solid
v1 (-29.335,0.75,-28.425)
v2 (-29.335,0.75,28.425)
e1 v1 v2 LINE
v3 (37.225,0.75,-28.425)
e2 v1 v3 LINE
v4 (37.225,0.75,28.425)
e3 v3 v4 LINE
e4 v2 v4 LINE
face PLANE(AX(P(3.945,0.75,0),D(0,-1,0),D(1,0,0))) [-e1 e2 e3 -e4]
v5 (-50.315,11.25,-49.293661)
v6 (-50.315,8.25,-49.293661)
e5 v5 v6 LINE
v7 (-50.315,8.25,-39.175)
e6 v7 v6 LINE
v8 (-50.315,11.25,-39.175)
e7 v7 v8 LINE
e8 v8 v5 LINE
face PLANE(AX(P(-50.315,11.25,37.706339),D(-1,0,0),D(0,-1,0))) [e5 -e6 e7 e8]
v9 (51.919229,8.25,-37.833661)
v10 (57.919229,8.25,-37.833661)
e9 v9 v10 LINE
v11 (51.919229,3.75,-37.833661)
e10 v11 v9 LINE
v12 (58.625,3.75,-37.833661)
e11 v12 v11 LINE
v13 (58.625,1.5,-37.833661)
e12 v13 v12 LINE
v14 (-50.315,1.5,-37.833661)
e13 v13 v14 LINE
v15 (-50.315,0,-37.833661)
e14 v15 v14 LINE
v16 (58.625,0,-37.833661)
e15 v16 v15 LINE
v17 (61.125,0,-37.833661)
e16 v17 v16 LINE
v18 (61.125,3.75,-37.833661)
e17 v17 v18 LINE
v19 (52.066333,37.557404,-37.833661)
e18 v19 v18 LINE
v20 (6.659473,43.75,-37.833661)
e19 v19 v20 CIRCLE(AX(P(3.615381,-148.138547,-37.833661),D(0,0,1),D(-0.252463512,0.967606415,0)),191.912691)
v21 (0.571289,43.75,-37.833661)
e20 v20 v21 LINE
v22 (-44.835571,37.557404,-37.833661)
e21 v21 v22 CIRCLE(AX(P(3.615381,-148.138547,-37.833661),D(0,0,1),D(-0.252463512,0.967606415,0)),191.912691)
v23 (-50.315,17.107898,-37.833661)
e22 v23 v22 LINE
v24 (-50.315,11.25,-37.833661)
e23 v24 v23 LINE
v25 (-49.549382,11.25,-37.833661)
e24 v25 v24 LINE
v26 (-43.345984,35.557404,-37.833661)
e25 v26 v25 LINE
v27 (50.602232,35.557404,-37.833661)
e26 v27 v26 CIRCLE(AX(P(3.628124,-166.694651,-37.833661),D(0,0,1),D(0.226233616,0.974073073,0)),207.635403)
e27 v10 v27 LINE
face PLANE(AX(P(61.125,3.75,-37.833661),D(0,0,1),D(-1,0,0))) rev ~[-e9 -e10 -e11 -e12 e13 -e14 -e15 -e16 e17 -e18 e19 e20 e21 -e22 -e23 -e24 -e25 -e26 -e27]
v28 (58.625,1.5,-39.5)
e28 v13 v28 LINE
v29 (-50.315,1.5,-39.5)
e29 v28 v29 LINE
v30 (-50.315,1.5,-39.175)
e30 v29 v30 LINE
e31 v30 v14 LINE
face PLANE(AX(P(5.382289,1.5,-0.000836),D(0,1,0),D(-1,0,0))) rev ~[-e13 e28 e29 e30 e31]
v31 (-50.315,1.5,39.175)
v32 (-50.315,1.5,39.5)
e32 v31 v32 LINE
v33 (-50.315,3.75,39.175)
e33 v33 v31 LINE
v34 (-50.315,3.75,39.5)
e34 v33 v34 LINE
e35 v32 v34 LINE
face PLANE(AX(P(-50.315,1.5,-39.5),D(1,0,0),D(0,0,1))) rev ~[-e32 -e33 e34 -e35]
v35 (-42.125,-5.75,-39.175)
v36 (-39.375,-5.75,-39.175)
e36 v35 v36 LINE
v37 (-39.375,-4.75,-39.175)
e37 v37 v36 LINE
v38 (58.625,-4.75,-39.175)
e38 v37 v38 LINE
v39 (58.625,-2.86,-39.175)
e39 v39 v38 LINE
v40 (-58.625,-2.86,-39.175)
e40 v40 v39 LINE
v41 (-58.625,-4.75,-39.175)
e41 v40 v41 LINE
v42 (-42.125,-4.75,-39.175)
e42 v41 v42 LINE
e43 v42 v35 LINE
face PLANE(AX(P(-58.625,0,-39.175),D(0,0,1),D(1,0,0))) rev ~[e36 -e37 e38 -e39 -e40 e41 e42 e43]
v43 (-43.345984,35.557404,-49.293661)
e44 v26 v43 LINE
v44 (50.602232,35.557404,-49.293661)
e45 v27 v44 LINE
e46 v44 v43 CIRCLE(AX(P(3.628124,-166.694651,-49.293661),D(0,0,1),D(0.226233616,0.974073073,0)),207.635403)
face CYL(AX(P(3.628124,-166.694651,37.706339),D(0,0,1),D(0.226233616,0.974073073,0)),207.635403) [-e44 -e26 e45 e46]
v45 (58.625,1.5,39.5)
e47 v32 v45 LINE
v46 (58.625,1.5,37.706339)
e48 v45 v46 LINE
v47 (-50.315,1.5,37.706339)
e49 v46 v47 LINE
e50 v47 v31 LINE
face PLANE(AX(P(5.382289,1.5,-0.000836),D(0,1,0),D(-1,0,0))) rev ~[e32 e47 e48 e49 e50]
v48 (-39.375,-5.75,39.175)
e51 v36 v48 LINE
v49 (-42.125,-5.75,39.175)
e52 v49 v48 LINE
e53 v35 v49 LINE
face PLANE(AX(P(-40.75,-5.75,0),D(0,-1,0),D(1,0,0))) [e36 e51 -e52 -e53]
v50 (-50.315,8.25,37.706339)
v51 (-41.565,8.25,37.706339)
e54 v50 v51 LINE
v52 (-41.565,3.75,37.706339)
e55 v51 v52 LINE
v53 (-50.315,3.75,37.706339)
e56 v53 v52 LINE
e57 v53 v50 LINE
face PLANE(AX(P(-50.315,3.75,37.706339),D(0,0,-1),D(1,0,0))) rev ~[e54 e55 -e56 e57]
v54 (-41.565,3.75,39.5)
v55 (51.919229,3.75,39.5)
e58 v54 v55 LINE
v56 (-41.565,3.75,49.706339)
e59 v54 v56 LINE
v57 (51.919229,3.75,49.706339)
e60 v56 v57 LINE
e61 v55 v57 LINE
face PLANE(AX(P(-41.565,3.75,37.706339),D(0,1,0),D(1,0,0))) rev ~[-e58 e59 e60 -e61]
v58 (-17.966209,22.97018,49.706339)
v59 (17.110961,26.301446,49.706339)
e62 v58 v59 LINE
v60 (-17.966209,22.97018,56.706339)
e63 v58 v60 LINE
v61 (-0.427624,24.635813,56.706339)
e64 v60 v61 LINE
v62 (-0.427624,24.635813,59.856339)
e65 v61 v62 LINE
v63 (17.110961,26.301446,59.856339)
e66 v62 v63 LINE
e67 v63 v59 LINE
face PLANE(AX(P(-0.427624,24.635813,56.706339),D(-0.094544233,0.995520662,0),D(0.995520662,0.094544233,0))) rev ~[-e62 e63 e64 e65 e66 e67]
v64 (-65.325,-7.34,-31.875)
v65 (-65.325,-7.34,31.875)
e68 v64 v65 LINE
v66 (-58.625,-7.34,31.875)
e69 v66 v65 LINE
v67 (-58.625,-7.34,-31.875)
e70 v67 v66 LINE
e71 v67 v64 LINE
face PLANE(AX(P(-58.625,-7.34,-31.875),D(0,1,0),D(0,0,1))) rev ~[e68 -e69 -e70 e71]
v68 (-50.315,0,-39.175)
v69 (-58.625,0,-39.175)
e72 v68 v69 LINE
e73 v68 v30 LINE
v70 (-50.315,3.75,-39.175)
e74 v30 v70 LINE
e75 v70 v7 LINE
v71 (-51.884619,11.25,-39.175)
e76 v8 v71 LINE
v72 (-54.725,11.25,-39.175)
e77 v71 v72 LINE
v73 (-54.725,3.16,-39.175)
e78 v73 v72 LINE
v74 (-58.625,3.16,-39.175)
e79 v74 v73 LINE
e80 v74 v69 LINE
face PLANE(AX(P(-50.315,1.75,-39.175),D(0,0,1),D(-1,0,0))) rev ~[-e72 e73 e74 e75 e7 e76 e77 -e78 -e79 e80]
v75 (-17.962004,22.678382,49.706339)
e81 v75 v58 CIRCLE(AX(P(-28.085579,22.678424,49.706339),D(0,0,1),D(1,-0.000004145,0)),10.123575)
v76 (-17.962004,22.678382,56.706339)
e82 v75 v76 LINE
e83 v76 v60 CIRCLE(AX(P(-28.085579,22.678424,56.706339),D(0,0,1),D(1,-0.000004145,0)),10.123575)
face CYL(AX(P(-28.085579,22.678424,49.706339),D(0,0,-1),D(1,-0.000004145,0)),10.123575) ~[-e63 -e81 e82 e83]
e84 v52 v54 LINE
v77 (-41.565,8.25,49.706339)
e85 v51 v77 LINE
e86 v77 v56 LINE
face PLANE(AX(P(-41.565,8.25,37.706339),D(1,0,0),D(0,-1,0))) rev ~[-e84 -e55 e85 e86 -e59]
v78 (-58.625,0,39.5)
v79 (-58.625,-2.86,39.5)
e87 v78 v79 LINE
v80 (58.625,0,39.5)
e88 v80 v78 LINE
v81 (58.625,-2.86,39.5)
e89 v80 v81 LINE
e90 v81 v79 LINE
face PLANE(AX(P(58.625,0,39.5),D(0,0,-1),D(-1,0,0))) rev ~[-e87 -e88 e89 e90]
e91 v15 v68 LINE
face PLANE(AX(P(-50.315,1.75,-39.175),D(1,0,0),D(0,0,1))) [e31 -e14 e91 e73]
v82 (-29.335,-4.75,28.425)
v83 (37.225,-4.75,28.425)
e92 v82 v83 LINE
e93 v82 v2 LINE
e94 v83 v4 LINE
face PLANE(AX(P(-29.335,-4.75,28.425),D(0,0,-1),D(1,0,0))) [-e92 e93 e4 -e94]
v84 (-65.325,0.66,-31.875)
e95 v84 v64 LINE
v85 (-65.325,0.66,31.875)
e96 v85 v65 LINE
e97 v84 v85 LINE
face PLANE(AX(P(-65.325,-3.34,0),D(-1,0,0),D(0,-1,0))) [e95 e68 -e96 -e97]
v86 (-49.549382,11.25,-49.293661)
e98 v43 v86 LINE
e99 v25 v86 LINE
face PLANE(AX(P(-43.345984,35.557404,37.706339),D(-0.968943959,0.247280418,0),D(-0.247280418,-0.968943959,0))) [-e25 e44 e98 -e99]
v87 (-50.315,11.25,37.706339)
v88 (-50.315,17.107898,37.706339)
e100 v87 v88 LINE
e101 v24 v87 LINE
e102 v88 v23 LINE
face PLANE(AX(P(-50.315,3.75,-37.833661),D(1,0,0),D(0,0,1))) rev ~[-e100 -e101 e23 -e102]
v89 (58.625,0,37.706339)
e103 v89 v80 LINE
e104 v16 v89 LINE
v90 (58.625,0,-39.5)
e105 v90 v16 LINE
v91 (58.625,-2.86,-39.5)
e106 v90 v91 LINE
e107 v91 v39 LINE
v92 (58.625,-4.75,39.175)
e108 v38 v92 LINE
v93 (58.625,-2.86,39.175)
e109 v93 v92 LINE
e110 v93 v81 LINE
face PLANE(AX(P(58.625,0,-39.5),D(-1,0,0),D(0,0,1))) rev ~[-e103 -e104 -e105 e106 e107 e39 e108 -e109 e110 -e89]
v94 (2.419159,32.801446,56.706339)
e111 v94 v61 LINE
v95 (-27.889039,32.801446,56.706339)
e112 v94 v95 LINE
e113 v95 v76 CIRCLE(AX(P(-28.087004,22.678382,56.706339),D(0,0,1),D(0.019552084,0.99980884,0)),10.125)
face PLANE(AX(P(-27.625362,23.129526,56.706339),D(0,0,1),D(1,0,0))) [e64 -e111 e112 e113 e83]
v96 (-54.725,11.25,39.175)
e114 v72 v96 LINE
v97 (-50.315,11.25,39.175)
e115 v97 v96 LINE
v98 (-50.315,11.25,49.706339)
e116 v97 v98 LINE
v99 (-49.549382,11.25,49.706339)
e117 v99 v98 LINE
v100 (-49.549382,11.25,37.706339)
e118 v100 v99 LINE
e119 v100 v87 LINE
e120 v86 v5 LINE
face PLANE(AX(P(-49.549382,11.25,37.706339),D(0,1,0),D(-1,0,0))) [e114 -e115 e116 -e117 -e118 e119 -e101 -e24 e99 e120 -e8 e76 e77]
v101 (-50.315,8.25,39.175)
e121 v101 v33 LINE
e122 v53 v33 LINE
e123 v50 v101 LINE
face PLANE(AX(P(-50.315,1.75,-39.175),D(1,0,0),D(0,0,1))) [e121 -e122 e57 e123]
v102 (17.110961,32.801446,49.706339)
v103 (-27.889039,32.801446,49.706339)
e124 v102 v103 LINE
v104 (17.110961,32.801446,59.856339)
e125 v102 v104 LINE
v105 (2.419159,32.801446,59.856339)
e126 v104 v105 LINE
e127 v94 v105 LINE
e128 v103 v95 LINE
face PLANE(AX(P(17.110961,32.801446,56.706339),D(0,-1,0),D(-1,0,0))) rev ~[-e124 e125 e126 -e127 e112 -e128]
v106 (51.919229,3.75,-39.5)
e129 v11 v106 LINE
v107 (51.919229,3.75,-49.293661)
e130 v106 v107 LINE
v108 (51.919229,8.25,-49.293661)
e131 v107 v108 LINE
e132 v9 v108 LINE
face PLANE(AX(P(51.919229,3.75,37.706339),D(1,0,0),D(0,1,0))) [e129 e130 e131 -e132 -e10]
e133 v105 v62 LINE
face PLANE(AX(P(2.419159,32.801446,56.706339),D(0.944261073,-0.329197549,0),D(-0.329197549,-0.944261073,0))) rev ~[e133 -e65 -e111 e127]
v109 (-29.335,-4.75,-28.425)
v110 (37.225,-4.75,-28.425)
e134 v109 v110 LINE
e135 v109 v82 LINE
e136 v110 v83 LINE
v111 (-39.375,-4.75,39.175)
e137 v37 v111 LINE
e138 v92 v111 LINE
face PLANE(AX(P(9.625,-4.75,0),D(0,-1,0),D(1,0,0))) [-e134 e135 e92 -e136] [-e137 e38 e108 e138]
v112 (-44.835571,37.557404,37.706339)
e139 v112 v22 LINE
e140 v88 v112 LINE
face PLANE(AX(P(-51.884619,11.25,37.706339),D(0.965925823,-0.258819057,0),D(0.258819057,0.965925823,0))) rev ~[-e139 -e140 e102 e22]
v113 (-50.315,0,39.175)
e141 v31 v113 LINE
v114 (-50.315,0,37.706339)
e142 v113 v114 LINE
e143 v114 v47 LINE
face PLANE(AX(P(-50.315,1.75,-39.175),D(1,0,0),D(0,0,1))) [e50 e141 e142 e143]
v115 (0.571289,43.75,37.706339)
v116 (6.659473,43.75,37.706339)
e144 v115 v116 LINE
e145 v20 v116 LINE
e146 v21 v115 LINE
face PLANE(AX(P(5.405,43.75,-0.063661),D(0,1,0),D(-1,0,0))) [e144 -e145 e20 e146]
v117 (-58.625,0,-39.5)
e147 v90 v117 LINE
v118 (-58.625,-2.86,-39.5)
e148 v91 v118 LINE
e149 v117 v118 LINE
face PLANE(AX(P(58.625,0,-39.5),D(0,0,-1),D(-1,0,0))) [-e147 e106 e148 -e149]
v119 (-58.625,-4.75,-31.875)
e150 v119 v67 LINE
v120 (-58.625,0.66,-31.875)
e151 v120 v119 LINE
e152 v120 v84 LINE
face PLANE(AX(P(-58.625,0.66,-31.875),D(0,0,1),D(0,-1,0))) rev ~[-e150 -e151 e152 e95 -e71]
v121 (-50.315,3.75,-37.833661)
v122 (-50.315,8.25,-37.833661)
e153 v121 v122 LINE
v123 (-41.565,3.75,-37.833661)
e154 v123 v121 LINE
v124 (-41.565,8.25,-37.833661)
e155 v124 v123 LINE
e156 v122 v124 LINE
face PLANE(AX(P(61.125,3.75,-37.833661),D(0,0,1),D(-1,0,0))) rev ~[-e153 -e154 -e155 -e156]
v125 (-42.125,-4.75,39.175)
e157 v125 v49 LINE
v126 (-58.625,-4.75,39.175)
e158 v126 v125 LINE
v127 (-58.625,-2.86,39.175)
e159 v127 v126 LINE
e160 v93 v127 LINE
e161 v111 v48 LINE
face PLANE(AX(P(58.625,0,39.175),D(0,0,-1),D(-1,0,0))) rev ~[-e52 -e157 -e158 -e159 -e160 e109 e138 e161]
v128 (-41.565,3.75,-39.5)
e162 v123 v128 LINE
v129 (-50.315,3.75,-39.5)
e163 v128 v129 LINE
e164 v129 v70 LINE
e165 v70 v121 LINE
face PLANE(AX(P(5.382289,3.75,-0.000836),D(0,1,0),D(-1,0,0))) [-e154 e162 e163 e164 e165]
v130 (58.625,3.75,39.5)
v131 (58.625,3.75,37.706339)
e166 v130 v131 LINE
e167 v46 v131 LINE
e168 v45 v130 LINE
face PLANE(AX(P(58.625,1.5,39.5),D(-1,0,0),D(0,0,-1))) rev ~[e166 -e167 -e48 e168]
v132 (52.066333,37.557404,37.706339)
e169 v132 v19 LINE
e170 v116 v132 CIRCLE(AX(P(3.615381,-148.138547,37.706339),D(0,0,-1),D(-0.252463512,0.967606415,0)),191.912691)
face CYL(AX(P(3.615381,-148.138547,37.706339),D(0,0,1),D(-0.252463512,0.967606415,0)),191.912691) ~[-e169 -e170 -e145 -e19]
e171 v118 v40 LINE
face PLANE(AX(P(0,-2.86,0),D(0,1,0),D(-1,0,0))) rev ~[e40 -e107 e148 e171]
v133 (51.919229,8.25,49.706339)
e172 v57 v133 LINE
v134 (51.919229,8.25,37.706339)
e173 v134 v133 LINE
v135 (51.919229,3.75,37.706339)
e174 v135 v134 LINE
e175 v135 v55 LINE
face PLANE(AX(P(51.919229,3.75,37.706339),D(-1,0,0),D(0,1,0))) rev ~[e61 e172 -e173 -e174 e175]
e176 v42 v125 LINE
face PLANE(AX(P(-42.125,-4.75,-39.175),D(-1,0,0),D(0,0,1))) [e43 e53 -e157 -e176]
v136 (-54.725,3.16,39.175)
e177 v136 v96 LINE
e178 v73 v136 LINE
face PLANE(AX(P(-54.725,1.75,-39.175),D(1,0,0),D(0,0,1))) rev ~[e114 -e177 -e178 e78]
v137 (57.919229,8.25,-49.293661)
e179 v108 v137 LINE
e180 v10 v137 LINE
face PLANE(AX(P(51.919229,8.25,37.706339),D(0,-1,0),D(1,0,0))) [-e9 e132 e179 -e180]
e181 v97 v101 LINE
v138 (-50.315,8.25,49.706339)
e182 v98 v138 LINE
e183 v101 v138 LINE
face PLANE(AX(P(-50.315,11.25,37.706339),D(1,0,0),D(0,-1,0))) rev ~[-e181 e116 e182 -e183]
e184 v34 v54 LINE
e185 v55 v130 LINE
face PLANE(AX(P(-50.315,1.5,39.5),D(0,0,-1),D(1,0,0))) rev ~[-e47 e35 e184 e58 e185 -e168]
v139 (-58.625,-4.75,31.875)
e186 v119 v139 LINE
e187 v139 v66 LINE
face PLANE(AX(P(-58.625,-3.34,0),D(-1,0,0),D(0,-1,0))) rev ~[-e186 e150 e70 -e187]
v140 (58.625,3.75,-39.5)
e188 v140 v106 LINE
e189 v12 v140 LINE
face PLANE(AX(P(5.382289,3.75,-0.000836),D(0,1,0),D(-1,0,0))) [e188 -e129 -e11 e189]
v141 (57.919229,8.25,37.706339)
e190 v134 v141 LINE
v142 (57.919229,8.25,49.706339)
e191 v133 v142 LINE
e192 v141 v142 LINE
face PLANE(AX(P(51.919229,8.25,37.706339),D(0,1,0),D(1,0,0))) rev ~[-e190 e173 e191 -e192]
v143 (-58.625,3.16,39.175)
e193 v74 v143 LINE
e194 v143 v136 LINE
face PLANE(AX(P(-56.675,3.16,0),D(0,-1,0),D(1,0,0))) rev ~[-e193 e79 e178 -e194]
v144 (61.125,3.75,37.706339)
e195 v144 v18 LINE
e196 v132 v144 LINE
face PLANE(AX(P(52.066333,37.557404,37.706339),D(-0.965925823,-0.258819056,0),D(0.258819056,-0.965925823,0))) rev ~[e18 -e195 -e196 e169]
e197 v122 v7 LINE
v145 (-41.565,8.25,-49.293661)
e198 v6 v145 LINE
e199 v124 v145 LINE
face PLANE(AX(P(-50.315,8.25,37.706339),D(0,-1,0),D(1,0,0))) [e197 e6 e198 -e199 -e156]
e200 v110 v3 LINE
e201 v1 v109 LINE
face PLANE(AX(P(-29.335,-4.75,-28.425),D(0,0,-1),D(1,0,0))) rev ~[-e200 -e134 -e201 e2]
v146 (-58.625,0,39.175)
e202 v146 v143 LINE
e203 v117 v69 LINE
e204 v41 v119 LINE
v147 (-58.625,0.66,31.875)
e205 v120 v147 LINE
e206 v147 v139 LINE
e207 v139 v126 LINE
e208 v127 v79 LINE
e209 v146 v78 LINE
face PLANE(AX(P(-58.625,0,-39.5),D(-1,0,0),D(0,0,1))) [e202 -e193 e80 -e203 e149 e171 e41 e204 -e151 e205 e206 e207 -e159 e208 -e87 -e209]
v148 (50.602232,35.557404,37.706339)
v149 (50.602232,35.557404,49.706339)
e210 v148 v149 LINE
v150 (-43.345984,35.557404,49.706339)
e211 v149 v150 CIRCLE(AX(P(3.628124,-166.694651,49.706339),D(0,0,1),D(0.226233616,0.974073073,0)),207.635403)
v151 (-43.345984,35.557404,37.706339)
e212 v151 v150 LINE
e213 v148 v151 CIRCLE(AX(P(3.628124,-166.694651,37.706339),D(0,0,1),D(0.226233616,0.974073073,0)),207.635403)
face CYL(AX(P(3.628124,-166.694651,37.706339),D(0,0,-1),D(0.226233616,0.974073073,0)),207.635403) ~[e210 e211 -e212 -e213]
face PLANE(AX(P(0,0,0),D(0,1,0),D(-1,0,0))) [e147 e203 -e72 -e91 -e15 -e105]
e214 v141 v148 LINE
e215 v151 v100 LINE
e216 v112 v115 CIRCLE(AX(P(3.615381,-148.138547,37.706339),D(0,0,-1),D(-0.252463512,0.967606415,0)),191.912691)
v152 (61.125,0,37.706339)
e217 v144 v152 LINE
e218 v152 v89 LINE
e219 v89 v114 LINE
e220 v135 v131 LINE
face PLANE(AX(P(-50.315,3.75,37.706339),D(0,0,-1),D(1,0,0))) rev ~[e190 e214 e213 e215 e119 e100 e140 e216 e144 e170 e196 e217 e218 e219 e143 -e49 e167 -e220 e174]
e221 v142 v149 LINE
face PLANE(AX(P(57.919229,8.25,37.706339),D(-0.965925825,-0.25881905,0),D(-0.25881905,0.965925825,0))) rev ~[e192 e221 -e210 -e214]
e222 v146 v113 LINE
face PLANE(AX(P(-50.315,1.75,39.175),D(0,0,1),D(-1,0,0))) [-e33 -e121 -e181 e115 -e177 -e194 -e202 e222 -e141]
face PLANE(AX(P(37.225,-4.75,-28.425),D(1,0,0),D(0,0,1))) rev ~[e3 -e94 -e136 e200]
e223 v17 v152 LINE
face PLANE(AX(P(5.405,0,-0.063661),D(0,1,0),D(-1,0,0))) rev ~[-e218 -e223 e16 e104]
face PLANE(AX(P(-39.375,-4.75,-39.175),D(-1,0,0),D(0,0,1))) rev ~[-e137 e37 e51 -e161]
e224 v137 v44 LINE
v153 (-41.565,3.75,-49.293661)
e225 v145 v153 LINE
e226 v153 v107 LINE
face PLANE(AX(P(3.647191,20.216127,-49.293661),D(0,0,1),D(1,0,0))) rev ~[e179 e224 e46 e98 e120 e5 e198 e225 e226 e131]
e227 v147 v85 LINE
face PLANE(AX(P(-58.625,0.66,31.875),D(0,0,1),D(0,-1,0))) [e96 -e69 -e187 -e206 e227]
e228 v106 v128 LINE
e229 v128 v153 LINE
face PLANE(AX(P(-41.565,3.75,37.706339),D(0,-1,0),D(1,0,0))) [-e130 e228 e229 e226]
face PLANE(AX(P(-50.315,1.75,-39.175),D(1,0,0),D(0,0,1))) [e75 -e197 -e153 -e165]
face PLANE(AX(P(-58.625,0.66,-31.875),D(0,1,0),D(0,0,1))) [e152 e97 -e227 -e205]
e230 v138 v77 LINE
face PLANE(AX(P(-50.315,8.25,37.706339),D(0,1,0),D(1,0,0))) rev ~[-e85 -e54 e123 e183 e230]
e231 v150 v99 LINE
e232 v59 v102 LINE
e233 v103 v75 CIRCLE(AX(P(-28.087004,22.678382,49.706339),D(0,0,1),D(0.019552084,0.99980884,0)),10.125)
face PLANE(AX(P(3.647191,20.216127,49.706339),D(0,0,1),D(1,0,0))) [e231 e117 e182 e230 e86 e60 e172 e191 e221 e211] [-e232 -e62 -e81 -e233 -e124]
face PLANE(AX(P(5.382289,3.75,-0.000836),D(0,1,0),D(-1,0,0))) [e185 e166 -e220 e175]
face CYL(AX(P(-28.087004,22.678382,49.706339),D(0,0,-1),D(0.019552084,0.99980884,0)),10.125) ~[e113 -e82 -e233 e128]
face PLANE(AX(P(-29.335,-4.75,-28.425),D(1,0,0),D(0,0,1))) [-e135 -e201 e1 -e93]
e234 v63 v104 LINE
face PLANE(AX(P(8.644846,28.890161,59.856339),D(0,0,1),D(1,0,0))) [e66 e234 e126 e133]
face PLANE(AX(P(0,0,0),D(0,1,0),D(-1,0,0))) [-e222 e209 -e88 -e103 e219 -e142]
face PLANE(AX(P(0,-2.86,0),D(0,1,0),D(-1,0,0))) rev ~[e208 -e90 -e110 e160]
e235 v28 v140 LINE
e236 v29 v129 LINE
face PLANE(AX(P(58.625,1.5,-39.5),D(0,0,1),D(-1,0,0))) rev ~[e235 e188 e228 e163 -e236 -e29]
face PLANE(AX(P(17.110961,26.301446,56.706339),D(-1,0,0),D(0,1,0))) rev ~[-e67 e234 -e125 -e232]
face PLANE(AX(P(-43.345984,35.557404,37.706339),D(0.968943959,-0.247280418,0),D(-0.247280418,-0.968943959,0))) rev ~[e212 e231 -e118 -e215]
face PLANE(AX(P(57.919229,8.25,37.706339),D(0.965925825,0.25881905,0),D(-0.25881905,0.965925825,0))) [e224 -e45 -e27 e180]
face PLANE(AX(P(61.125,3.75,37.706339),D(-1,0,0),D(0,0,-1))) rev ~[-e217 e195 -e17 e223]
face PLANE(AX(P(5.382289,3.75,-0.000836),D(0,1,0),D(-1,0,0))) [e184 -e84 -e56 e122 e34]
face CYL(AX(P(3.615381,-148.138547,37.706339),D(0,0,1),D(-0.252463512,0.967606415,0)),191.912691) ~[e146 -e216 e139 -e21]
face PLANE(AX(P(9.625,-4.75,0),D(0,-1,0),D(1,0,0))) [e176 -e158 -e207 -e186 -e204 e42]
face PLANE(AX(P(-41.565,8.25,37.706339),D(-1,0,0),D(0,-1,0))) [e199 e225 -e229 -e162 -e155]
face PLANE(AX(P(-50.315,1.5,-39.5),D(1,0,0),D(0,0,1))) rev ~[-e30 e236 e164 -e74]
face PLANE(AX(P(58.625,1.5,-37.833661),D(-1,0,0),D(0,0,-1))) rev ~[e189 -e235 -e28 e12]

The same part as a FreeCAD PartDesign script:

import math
import FreeCAD as App
import Part
import Sketcher
from FreeCAD import Vector
Q = App.Units.Quantity

doc = App.newDocument("Part")
params = doc.addObject("Spreadsheet::Sheet", "Params")
for row, (alias, value) in enumerate([
    ("sketch1_width", "117.25 mm"),
    ("sketch1_height", "78.35 mm"),
    ("pad1_length", "4.75 mm"),
    ("sketch2_width", "2.75 mm"),
    ("sketch2_height", "78.35 mm"),
    ("pad2_length", "1 mm"),
    ("sketch3_width", "66.56 mm"),
    ("sketch3_height", "56.85 mm"),
    ("pocket1_length", "25 mm"),
    ("sketch4_height", "79 mm"),
    ("sketch4_width", "117.25 mm"),
    ("pad3_length", "2.86 mm"),
    ("sketch5_width", "3.9 mm"),
    ("sketch5_height", "78.35 mm"),
    ("pad4_length", "7.91 mm"),
    ("sketch6_width", "8.31 mm"),
    ("sketch6_height", "78.35 mm"),
    ("pad5_length", "6.5 mm"),
    ("sketch7_width", "111.44 mm"),
    ("sketch7_height", "75.54 mm"),
    ("pad6_length", "1.5 mm"),
    ("sketch8_width", "4.41 mm"),
    ("sketch8_height", "78.35 mm"),
    ("pad7_length", "9.5 mm"),
    ("sketch9_height", "79 mm"),
    ("sketch9_width", "2.5 mm"),
    ("sketch9_width2", "108.94 mm"),
    ("sketch9_height2", "75.54 mm"),
    ("pad8_length", "2.25 mm"),
    ("sketch10_width", "111.44 mm"),
    ("sketch10_height", "75.54 mm"),
    ("pad9_length", "40 mm"),
    ("sketch11_length", "35 mm"),
    ("pocket2_length", "95.3 mm"),
    ("sketch12_width", "6 mm"),
    ("sketch12_height", "3 mm"),
    ("sketch12_height2", "4.5 mm"),
    ("sketch12_width2", "8.75 mm"),
    ("pad10_length", "12 mm"),
    ("pad10_length2", "87 mm"),
    ("sketch13_width", "45 mm"),
    ("sketch13_height", "6.5 mm"),
    ("pad11_length", "7 mm"),
    ("sketch14_height", "6.5 mm"),
    ("pad12_length", "3.15 mm"),
    ("sketch15_width", "8 mm"),
    ("sketch15_height", "63.75 mm"),
    ("pad13_length", "6.7 mm"),
    ("sketch16_width", "66.56 mm"),
    ("sketch16_height", "56.85 mm"),
    ("pocket3_length", "5.5 mm"),
], start=1):
    params.set(f"A{row}", alias)
    params.set(f"B{row}", "=" + value)
    params.setAlias(f"B{row}", alias)

body = doc.addObject("PartDesign::Body", "Body")

sketch1 = doc.addObject("Sketcher::SketchObject", "Sketch")
body.addObject(sketch1)
sketch1.AttachmentSupport = (doc.XZ_Plane, [""])
sketch1.MapMode = "FlatFace"
sketch1.addGeometry([
    Part.LineSegment(Vector(58.625, -39.175, 0), Vector(58.625, 39.175, 0)),
    Part.LineSegment(Vector(58.625, 39.175, 0), Vector(-58.625, 39.175, 0)),
    Part.LineSegment(Vector(-58.625, 39.175, 0), Vector(-58.625, -39.175, 0)),
    Part.LineSegment(Vector(-58.625, -39.175, 0), Vector(58.625, -39.175, 0)),
], False)
sketch1.addConstraint([
    Sketcher.Constraint("Coincident", 0, 2, 1, 1),
    Sketcher.Constraint("Coincident", 1, 2, 2, 1),
    Sketcher.Constraint("Coincident", 2, 2, 3, 1),
    Sketcher.Constraint("Coincident", 3, 2, 0, 1),
    Sketcher.Constraint("Vertical", 0),
    Sketcher.Constraint("Horizontal", 1),
    Sketcher.Constraint("Vertical", 2),
    Sketcher.Constraint("Horizontal", 3),
    Sketcher.Constraint("Symmetric", 0, 2, 2, 2, -1, 1),
    Sketcher.Constraint("DistanceX", 1, 2, 1, 1, 117.25),
    Sketcher.Constraint("DistanceY", 0, 1, 0, 2, 78.35),
])
sketch1.setExpression("Constraints[9]", "Params.sketch1_width")
sketch1.setExpression("Constraints[10]", "Params.sketch1_height")
pad1 = doc.addObject("PartDesign::Pad", "Pad")
body.addObject(pad1)
pad1.Profile = sketch1
pad1.setExpression("Length", "Params.pad1_length")

sketch2 = doc.addObject("Sketcher::SketchObject", "Sketch001")
body.addObject(sketch2)
sketch2.AttachmentSupport = (doc.XZ_Plane, [""])
sketch2.MapMode = "FlatFace"
sketch2.AttachmentOffset = App.Placement(Vector(0, 0, 4.75), App.Rotation())
sketch2.addGeometry([
    Part.LineSegment(Vector(-42.125, 39.175, 0), Vector(-42.125, -39.175, 0)),
    Part.LineSegment(Vector(-42.125, -39.175, 0), Vector(-39.375, -39.175, 0)),
    Part.LineSegment(Vector(-39.375, -39.175, 0), Vector(-39.375, 39.175, 0)),
    Part.LineSegment(Vector(-39.375, 39.175, 0), Vector(-42.125, 39.175, 0)),
], False)
sketch2.addConstraint([
    Sketcher.Constraint("Coincident", 0, 2, 1, 1),
    Sketcher.Constraint("Coincident", 1, 2, 2, 1),
    Sketcher.Constraint("Coincident", 2, 2, 3, 1),
    Sketcher.Constraint("Coincident", 3, 2, 0, 1),
    Sketcher.Constraint("Vertical", 0),
    Sketcher.Constraint("Horizontal", 1),
    Sketcher.Constraint("Vertical", 2),
    Sketcher.Constraint("Horizontal", 3),
    Sketcher.Constraint("DistanceX", 1, 1, 1, 2, 2.75),
    Sketcher.Constraint("DistanceY", 0, 2, 0, 1, 78.35),
    Sketcher.Constraint("DistanceX", 0, 2, -1, 1, 42.125),
    Sketcher.Constraint("DistanceY", 0, 2, -1, 1, 39.175),
])
sketch2.setExpression("Constraints[8]", "Params.sketch2_width")
sketch2.setExpression("Constraints[9]", "Params.sketch2_height")
pad2 = doc.addObject("PartDesign::Pad", "Pad001")
body.addObject(pad2)
pad2.Profile = sketch2
pad2.setExpression("Length", "Params.pad2_length")

sketch3 = doc.addObject("Sketcher::SketchObject", "Sketch002")
body.addObject(sketch3)
sketch3.AttachmentSupport = (doc.XZ_Plane, [""])
sketch3.MapMode = "FlatFace"
sketch3.AttachmentOffset = App.Placement(Vector(0, 0, 4.75), App.Rotation())
sketch3.addGeometry([
    Part.LineSegment(Vector(-29.335, 28.425, 0), Vector(-29.335, -28.425, 0)),
    Part.LineSegment(Vector(-29.335, -28.425, 0), Vector(37.225, -28.425, 0)),
    Part.LineSegment(Vector(37.225, -28.425, 0), Vector(37.225, 28.425, 0)),
    Part.LineSegment(Vector(37.225, 28.425, 0), Vector(-29.335, 28.425, 0)),
], False)
sketch3.addConstraint([
    Sketcher.Constraint("Coincident", 0, 2, 1, 1),
    Sketcher.Constraint("Coincident", 1, 2, 2, 1),
    Sketcher.Constraint("Coincident", 2, 2, 3, 1),
    Sketcher.Constraint("Coincident", 3, 2, 0, 1),
    Sketcher.Constraint("Vertical", 0),
    Sketcher.Constraint("Horizontal", 1),
    Sketcher.Constraint("Vertical", 2),
    Sketcher.Constraint("Horizontal", 3),
    Sketcher.Constraint("DistanceX", 1, 1, 1, 2, 66.56),
    Sketcher.Constraint("DistanceY", 0, 2, 0, 1, 56.85),
    Sketcher.Constraint("DistanceX", 0, 2, -1, 1, 29.335),
    Sketcher.Constraint("DistanceY", 0, 2, -1, 1, 28.425),
])
sketch3.setExpression("Constraints[8]", "Params.sketch3_width")
sketch3.setExpression("Constraints[9]", "Params.sketch3_height")
pocket1 = doc.addObject("PartDesign::Pocket", "Pocket")
body.addObject(pocket1)
pocket1.Profile = sketch3
pocket1.setExpression("Length", "Params.pocket1_length")

sketch4 = doc.addObject("Sketcher::SketchObject", "Sketch003")
body.addObject(sketch4)
sketch4.AttachmentSupport = (doc.XZ_Plane, [""])
sketch4.MapMode = "FlatFace"
sketch4.addGeometry([
    Part.LineSegment(Vector(58.625, 39.5, 0), Vector(58.625, -39.5, 0)),
    Part.LineSegment(Vector(58.625, -39.5, 0), Vector(-58.625, -39.5, 0)),
    Part.LineSegment(Vector(-58.625, -39.5, 0), Vector(-58.625, 39.5, 0)),
    Part.LineSegment(Vector(-58.625, 39.5, 0), Vector(58.625, 39.5, 0)),
], False)
sketch4.addConstraint([
    Sketcher.Constraint("Coincident", 0, 2, 1, 1),
    Sketcher.Constraint("Coincident", 1, 2, 2, 1),
    Sketcher.Constraint("Coincident", 2, 2, 3, 1),
    Sketcher.Constraint("Coincident", 3, 2, 0, 1),
    Sketcher.Constraint("Vertical", 0),
    Sketcher.Constraint("Horizontal", 1),
    Sketcher.Constraint("Vertical", 2),
    Sketcher.Constraint("Horizontal", 3),
    Sketcher.Constraint("Symmetric", 0, 2, 2, 2, -1, 1),
    Sketcher.Constraint("DistanceY", 0, 2, 0, 1, 79.0),
    Sketcher.Constraint("DistanceX", 1, 2, 1, 1, 117.25),
])
sketch4.setExpression("Constraints[9]", "Params.sketch4_height")
sketch4.setExpression("Constraints[10]", "Params.sketch4_width")
pad3 = doc.addObject("PartDesign::Pad", "Pad002")
body.addObject(pad3)
pad3.Profile = sketch4
pad3.setExpression("Length", "Params.pad3_length")

sketch5 = doc.addObject("Sketcher::SketchObject", "Sketch004")
body.addObject(sketch5)
sketch5.AttachmentSupport = (doc.XZ_Plane, [""])
sketch5.MapMode = "FlatFace"
sketch5.AttachmentOffset = App.Placement(Vector(0, 0, 4.75), App.Rotation())
sketch5.addGeometry([
    Part.LineSegment(Vector(-58.625, 39.175, 0), Vector(-58.625, -39.175, 0)),
    Part.LineSegment(Vector(-58.625, -39.175, 0), Vector(-54.725, -39.175, 0)),
    Part.LineSegment(Vector(-54.725, -39.175, 0), Vector(-54.725, 39.175, 0)),
    Part.LineSegment(Vector(-54.725, 39.175, 0), Vector(-58.625, 39.175, 0)),
], False)
sketch5.addConstraint([
    Sketcher.Constraint("Coincident", 0, 2, 1, 1),
    Sketcher.Constraint("Coincident", 1, 2, 2, 1),
    Sketcher.Constraint("Coincident", 2, 2, 3, 1),
    Sketcher.Constraint("Coincident", 3, 2, 0, 1),
    Sketcher.Constraint("Vertical", 0),
    Sketcher.Constraint("Horizontal", 1),
    Sketcher.Constraint("Vertical", 2),
    Sketcher.Constraint("Horizontal", 3),
    Sketcher.Constraint("DistanceX", 1, 1, 1, 2, 3.9),
    Sketcher.Constraint("DistanceY", 0, 2, 0, 1, 78.35),
    Sketcher.Constraint("DistanceX", 0, 2, -1, 1, 58.625),
    Sketcher.Constraint("DistanceY", 0, 2, -1, 1, 39.175),
])
sketch5.setExpression("Constraints[8]", "Params.sketch5_width")
sketch5.setExpression("Constraints[9]", "Params.sketch5_height")
pad4 = doc.addObject("PartDesign::Pad", "Pad003")
body.addObject(pad4)
pad4.Profile = sketch5
pad4.setExpression("Length", "Params.pad4_length")
pad4.Reversed = True

sketch6 = doc.addObject("Sketcher::SketchObject", "Sketch005")
body.addObject(sketch6)
sketch6.AttachmentSupport = (doc.XZ_Plane, [""])
sketch6.MapMode = "FlatFace"
sketch6.AttachmentOffset = App.Placement(Vector(0, 0, 4.75), App.Rotation())
sketch6.addGeometry([
    Part.LineSegment(Vector(-58.625, 39.175, 0), Vector(-58.625, -39.175, 0)),
    Part.LineSegment(Vector(-58.625, -39.175, 0), Vector(-50.315, -39.175, 0)),
    Part.LineSegment(Vector(-50.315, -39.175, 0), Vector(-50.315, 39.175, 0)),
    Part.LineSegment(Vector(-50.315, 39.175, 0), Vector(-58.625, 39.175, 0)),
], False)
sketch6.addConstraint([
    Sketcher.Constraint("Coincident", 0, 2, 1, 1),
    Sketcher.Constraint("Coincident", 1, 2, 2, 1),
    Sketcher.Constraint("Coincident", 2, 2, 3, 1),
    Sketcher.Constraint("Coincident", 3, 2, 0, 1),
    Sketcher.Constraint("Vertical", 0),
    Sketcher.Constraint("Horizontal", 1),
    Sketcher.Constraint("Vertical", 2),
    Sketcher.Constraint("Horizontal", 3),
    Sketcher.Constraint("DistanceX", 1, 1, 1, 2, 8.31),
    Sketcher.Constraint("DistanceY", 0, 2, 0, 1, 78.35),
    Sketcher.Constraint("DistanceX", 0, 2, -1, 1, 58.625),
    Sketcher.Constraint("DistanceY", 0, 2, -1, 1, 39.175),
])
sketch6.setExpression("Constraints[8]", "Params.sketch6_width")
sketch6.setExpression("Constraints[9]", "Params.sketch6_height")
pad5 = doc.addObject("PartDesign::Pad", "Pad004")
body.addObject(pad5)
pad5.Profile = sketch6
pad5.setExpression("Length", "Params.pad5_length")
pad5.Reversed = True

sketch7 = doc.addObject("Sketcher::SketchObject", "Sketch006")
body.addObject(sketch7)
sketch7.AttachmentSupport = (doc.XZ_Plane, [""])
sketch7.MapMode = "FlatFace"
sketch7.addGeometry([
    Part.LineSegment(Vector(61.125, 37.706339, 0), Vector(61.125, -37.833661, 0)),
    Part.LineSegment(Vector(61.125, -37.833661, 0), Vector(-50.315, -37.833661, 0)),
    Part.LineSegment(Vector(-50.315, -37.833661, 0), Vector(-50.315, 37.706339, 0)),
    Part.LineSegment(Vector(-50.315, 37.706339, 0), Vector(61.125, 37.706339, 0)),
], False)
sketch7.addConstraint([
    Sketcher.Constraint("Coincident", 0, 2, 1, 1),
    Sketcher.Constraint("Coincident", 1, 2, 2, 1),
    Sketcher.Constraint("Coincident", 2, 2, 3, 1),
    Sketcher.Constraint("Coincident", 3, 2, 0, 1),
    Sketcher.Constraint("Vertical", 0),
    Sketcher.Constraint("Horizontal", 1),
    Sketcher.Constraint("Vertical", 2),
    Sketcher.Constraint("Horizontal", 3),
    Sketcher.Constraint("DistanceX", 1, 2, 1, 1, 111.44),
    Sketcher.Constraint("DistanceY", 0, 2, 0, 1, 75.54),
    Sketcher.Constraint("DistanceX", -1, 1, 0, 2, 61.125),
    Sketcher.Constraint("DistanceY", 0, 2, -1, 1, 37.833661),
])
sketch7.setExpression("Constraints[8]", "Params.sketch7_width")
sketch7.setExpression("Constraints[9]", "Params.sketch7_height")
pad6 = doc.addObject("PartDesign::Pad", "Pad005")
body.addObject(pad6)
pad6.Profile = sketch7
pad6.setExpression("Length", "Params.pad6_length")
pad6.Reversed = True

sketch8 = doc.addObject("Sketcher::SketchObject", "Sketch007")
body.addObject(sketch8)
sketch8.AttachmentSupport = (doc.XZ_Plane, [""])
sketch8.MapMode = "FlatFace"
sketch8.AttachmentOffset = App.Placement(Vector(0, 0, -1.75), App.Rotation())
sketch8.addGeometry([
    Part.LineSegment(Vector(-50.315, 39.175, 0), Vector(-50.315, -39.175, 0)),
    Part.LineSegment(Vector(-50.315, -39.175, 0), Vector(-54.725, -39.175, 0)),
    Part.LineSegment(Vector(-54.725, -39.175, 0), Vector(-54.725, 39.175, 0)),
    Part.LineSegment(Vector(-54.725, 39.175, 0), Vector(-50.315, 39.175, 0)),
], False)
sketch8.addConstraint([
    Sketcher.Constraint("Coincident", 0, 2, 1, 1),
    Sketcher.Constraint("Coincident", 1, 2, 2, 1),
    Sketcher.Constraint("Coincident", 2, 2, 3, 1),
    Sketcher.Constraint("Coincident", 3, 2, 0, 1),
    Sketcher.Constraint("Vertical", 0),
    Sketcher.Constraint("Horizontal", 1),
    Sketcher.Constraint("Vertical", 2),
    Sketcher.Constraint("Horizontal", 3),
    Sketcher.Constraint("DistanceX", 1, 2, 1, 1, 4.41),
    Sketcher.Constraint("DistanceY", 0, 2, 0, 1, 78.35),
    Sketcher.Constraint("DistanceX", 0, 2, -1, 1, 50.315),
    Sketcher.Constraint("DistanceY", 0, 2, -1, 1, 39.175),
])
sketch8.setExpression("Constraints[8]", "Params.sketch8_width")
sketch8.setExpression("Constraints[9]", "Params.sketch8_height")
pad7 = doc.addObject("PartDesign::Pad", "Pad006")
body.addObject(pad7)
pad7.Profile = sketch8
pad7.setExpression("Length", "Params.pad7_length")
pad7.Reversed = True

sketch9 = doc.addObject("Sketcher::SketchObject", "Sketch008")
body.addObject(sketch9)
sketch9.AttachmentSupport = (doc.XZ_Plane, [""])
sketch9.MapMode = "FlatFace"
sketch9.AttachmentOffset = App.Placement(Vector(0, 0, -1.5), App.Rotation())
sketch9.addGeometry([
    Part.LineSegment(Vector(-50.315, 39.5, 0), Vector(58.625, 39.5, 0)),
    Part.LineSegment(Vector(58.625, 39.5, 0), Vector(58.625, 37.706339, 0)),
    Part.LineSegment(Vector(58.625, 37.706339, 0), Vector(61.125, 37.706339, 0)),
    Part.LineSegment(Vector(61.125, 37.706339, 0), Vector(61.125, -37.833661, 0)),
    Part.LineSegment(Vector(61.125, -37.833661, 0), Vector(58.625, -37.833661, 0)),
    Part.LineSegment(Vector(58.625, -37.833661, 0), Vector(58.625, -39.5, 0)),
    Part.LineSegment(Vector(58.625, -39.5, 0), Vector(-50.315, -39.5, 0)),
    Part.LineSegment(Vector(-50.315, -39.5, 0), Vector(-50.315, 39.5, 0)),
], False)
sketch9.addConstraint([
    Sketcher.Constraint("Coincident", 0, 2, 1, 1),
    Sketcher.Constraint("Coincident", 1, 2, 2, 1),
    Sketcher.Constraint("Coincident", 2, 2, 3, 1),
    Sketcher.Constraint("Coincident", 3, 2, 4, 1),
    Sketcher.Constraint("Coincident", 4, 2, 5, 1),
    Sketcher.Constraint("Coincident", 5, 2, 6, 1),
    Sketcher.Constraint("Coincident", 6, 2, 7, 1),
    Sketcher.Constraint("Coincident", 7, 2, 0, 1),
    Sketcher.Constraint("Horizontal", 0),
    Sketcher.Constraint("Vertical", 1),
    Sketcher.Constraint("Horizontal", 2),
    Sketcher.Constraint("Vertical", 3),
    Sketcher.Constraint("Horizontal", 4),
    Sketcher.Constraint("Vertical", 5),
    Sketcher.Constraint("Horizontal", 6),
    Sketcher.Constraint("Vertical", 7),
    Sketcher.Constraint("Symmetric", 0, 2, 5, 2, -1),
    Sketcher.Constraint("DistanceY", 7, 1, 7, 2, 79.0),
    Sketcher.Constraint("DistanceX", 2, 1, 2, 2, 2.5),
    Sketcher.Constraint("DistanceX", 0, 1, 0, 2, 108.94),
    Sketcher.Constraint("DistanceY", 3, 2, 3, 1, 75.54),
    Sketcher.Constraint("DistanceX", -1, 1, 0, 2, 58.625),
    Sketcher.Constraint("DistanceY", 1, 2, 1, 1, 1.793661),
])
sketch9.setExpression("Constraints[17]", "Params.sketch9_height")
sketch9.setExpression("Constraints[18]", "Params.sketch9_width")
sketch9.setExpression("Constraints[19]", "Params.sketch9_width2")
sketch9.setExpression("Constraints[20]", "Params.sketch9_height2")
pad8 = doc.addObject("PartDesign::Pad", "Pad007")
body.addObject(pad8)
pad8.Profile = sketch9
pad8.setExpression("Length", "Params.pad8_length")
pad8.Reversed = True

sketch10 = doc.addObject("Sketcher::SketchObject", "Sketch009")
body.addObject(sketch10)
sketch10.AttachmentSupport = (doc.XZ_Plane, [""])
sketch10.MapMode = "FlatFace"
sketch10.AttachmentOffset = App.Placement(Vector(0, 0, -3.75), App.Rotation())
sketch10.addGeometry([
    Part.LineSegment(Vector(61.125, 37.706339, 0), Vector(61.125, -37.833661, 0)),
    Part.LineSegment(Vector(61.125, -37.833661, 0), Vector(-50.315, -37.833661, 0)),
    Part.LineSegment(Vector(-50.315, -37.833661, 0), Vector(-50.315, 37.706339, 0)),
    Part.LineSegment(Vector(-50.315, 37.706339, 0), Vector(61.125, 37.706339, 0)),
], False)
sketch10.addConstraint([
    Sketcher.Constraint("Coincident", 0, 2, 1, 1),
    Sketcher.Constraint("Coincident", 1, 2, 2, 1),
    Sketcher.Constraint("Coincident", 2, 2, 3, 1),
    Sketcher.Constraint("Coincident", 3, 2, 0, 1),
    Sketcher.Constraint("Vertical", 0),
    Sketcher.Constraint("Horizontal", 1),
    Sketcher.Constraint("Vertical", 2),
    Sketcher.Constraint("Horizontal", 3),
    Sketcher.Constraint("DistanceX", 1, 2, 1, 1, 111.44),
    Sketcher.Constraint("DistanceY", 0, 2, 0, 1, 75.54),
    Sketcher.Constraint("DistanceX", -1, 1, 0, 2, 61.125),
    Sketcher.Constraint("DistanceY", 0, 2, -1, 1, 37.833661),
])
sketch10.setExpression("Constraints[8]", "Params.sketch10_width")
sketch10.setExpression("Constraints[9]", "Params.sketch10_height")
pad9 = doc.addObject("PartDesign::Pad", "Pad008")
body.addObject(pad9)
pad9.Profile = sketch10
pad9.setExpression("Length", "Params.pad9_length")
pad9.Reversed = True

sketch11 = doc.addObject("Sketcher::SketchObject", "Sketch010")
body.addObject(sketch11)
sketch11.AttachmentSupport = (doc.XY_Plane, [""])
sketch11.MapMode = "FlatFace"
sketch11.AttachmentOffset = App.Placement(Vector(0, 0, 37.706339), App.Rotation())
sketch11.addGeometry([
    Part.LineSegment(Vector(52.066333, 37.557404, 0), Vector(61.125, 3.75, 0)),
    Part.LineSegment(Vector(61.125, 3.75, 0), Vector(71.237857, 49.97474, 0)),
    Part.LineSegment(Vector(71.237857, 49.97474, 0), Vector(-55.704342, 49.97474, 0)),
    Part.LineSegment(Vector(-55.704342, 49.97474, 0), Vector(-51.884619, 11.25, 0)),
    Part.LineSegment(Vector(-51.884619, 11.25, 0), Vector(-44.835571, 37.557404, 0)),
    Part.ArcOfCircle(Part.Circle(Vector(3.615381, -148.138547, 0), Vector(0, 0, 1), 191.912691), math.radians(75.376662), math.radians(104.623338)),
], False)
sketch11.addConstraint([
    Sketcher.Constraint("Coincident", 0, 2, 1, 1),
    Sketcher.Constraint("Coincident", 1, 2, 2, 1),
    Sketcher.Constraint("Coincident", 2, 2, 3, 1),
    Sketcher.Constraint("Coincident", 3, 2, 4, 1),
    Sketcher.Constraint("Coincident", 4, 2, 5, 2),
    Sketcher.Constraint("Coincident", 5, 1, 0, 1),
    Sketcher.Constraint("Horizontal", 2),
    Sketcher.Constraint("Horizontal", 4, 2, 5, 1),
    Sketcher.Constraint("Angle", 0, Q("-74.999999 deg")),
    Sketcher.Constraint("Angle", 4, Q("74.999999 deg")),
    Sketcher.Constraint("Distance", 0, 35.0),
    Sketcher.Constraint("DistanceY", 0, 2, 3, 2, 7.5),
    Sketcher.Constraint("DistanceX", 3, 2, 5, 3, 55.5),
    Sketcher.Constraint("DistanceY", -1, 1, 0, 2, 3.75),
    Sketcher.Constraint("Radius", 5, 191.912691),
    Sketcher.Constraint("DistanceX", 2, 2, 2, 1, 126.942199),
    Sketcher.Constraint("DistanceX", -1, 1, 0, 2, 61.125),
    Sketcher.Constraint("Distance", 3, 38.912669),
    Sketcher.Constraint("DistanceY", -1, 1, 1, 2, 49.97474),
])
sketch11.setExpression("Constraints[10]", "Params.sketch11_length")
pocket2 = doc.addObject("PartDesign::Pocket", "Pocket001")
body.addObject(pocket2)
pocket2.Profile = sketch11
pocket2.setExpression("Length", "Params.pocket2_length")

sketch12 = doc.addObject("Sketcher::SketchObject", "Sketch011")
body.addObject(sketch12)
sketch12.AttachmentSupport = (doc.XY_Plane, [""])
sketch12.MapMode = "FlatFace"
sketch12.AttachmentOffset = App.Placement(Vector(0, 0, 37.706339), App.Rotation())
sketch12.addGeometry([
    Part.LineSegment(Vector(-50.315, 11.25, 0), Vector(-50.315, 8.25, 0)),
    Part.LineSegment(Vector(-50.315, 8.25, 0), Vector(-41.565, 8.25, 0)),
    Part.LineSegment(Vector(-41.565, 8.25, 0), Vector(-41.565, 3.75, 0)),
    Part.LineSegment(Vector(-41.565, 3.75, 0), Vector(51.919229, 3.75, 0)),
    Part.LineSegment(Vector(51.919229, 3.75, 0), Vector(51.919229, 8.25, 0)),
    Part.LineSegment(Vector(51.919229, 8.25, 0), Vector(57.919229, 8.25, 0)),
    Part.LineSegment(Vector(57.919229, 8.25, 0), Vector(50.602232, 35.557404, 0)),
    Part.ArcOfCircle(Part.Circle(Vector(3.628124, -166.694651, 0), Vector(0, 0, 1), 207.635403), math.radians(76.92457), math.radians(103.07543)),
    Part.LineSegment(Vector(-43.345984, 35.557404, 0), Vector(-49.549382, 11.25, 0)),
    Part.LineSegment(Vector(-49.549382, 11.25, 0), Vector(-50.315, 11.25, 0)),
], False)
sketch12.addConstraint([
    Sketcher.Constraint("Coincident", 0, 2, 1, 1),
    Sketcher.Constraint("Coincident", 1, 2, 2, 1),
    Sketcher.Constraint("Coincident", 2, 2, 3, 1),
    Sketcher.Constraint("Coincident", 3, 2, 4, 1),
    Sketcher.Constraint("Coincident", 4, 2, 5, 1),
    Sketcher.Constraint("Coincident", 5, 2, 6, 1),
    Sketcher.Constraint("Coincident", 6, 2, 7, 1),
    Sketcher.Constraint("Coincident", 7, 2, 8, 1),
    Sketcher.Constraint("Coincident", 8, 2, 9, 1),
    Sketcher.Constraint("Coincident", 9, 2, 0, 1),
    Sketcher.Constraint("Vertical", 0),
    Sketcher.Constraint("Horizontal", 1),
    Sketcher.Constraint("Vertical", 2),
    Sketcher.Constraint("Horizontal", 3),
    Sketcher.Constraint("Vertical", 4),
    Sketcher.Constraint("Horizontal", 5),
    Sketcher.Constraint("Horizontal", 9),
    Sketcher.Constraint("Horizontal", 1, 2, 4, 2),
    Sketcher.Constraint("Horizontal", 6, 2, 7, 2),
    Sketcher.Constraint("DistanceX", 5, 1, 5, 2, 6.0),
    Sketcher.Constraint("DistanceY", 0, 2, 0, 1, 3.0),
    Sketcher.Constraint("Angle", 6, Q("105 deg")),
    Sketcher.Constraint("DistanceY", 2, 2, 2, 1, 4.5),
    Sketcher.Constraint("DistanceX", 1, 1, 1, 2, 8.75),
    Sketcher.Constraint("DistanceY", -1, 1, 0, 2, 8.25),
    Sketcher.Constraint("DistanceX", 0, 2, -1, 1, 50.315),
    Sketcher.Constraint("Radius", 7, 207.635403),
    Sketcher.Constraint("DistanceX", 3, 1, 3, 2, 93.484229),
    Sketcher.Constraint("DistanceX", 8, 2, 7, 2, 6.203398),
    Sketcher.Constraint("Distance", 8, 25.086491),
    Sketcher.Constraint("DistanceX", 9, 2, 9, 1, 0.765618),
])
sketch12.setExpression("Constraints[19]", "Params.sketch12_width")
sketch12.setExpression("Constraints[20]", "Params.sketch12_height")
sketch12.setExpression("Constraints[22]", "Params.sketch12_height2")
sketch12.setExpression("Constraints[23]", "Params.sketch12_width2")
pad10 = doc.addObject("PartDesign::Pad", "Pad009")
body.addObject(pad10)
pad10.Profile = sketch12
pad10.Type = "TwoLengths"
pad10.setExpression("Length", "Params.pad10_length")
pad10.setExpression("Length2", "Params.pad10_length2")

sketch13 = doc.addObject("Sketcher::SketchObject", "Sketch012")
body.addObject(sketch13)
sketch13.AttachmentSupport = (doc.XY_Plane, [""])
sketch13.MapMode = "FlatFace"
sketch13.AttachmentOffset = App.Placement(Vector(0, 0, 49.706339), App.Rotation())
sketch13.addGeometry([
    Part.ArcOfCircle(Part.Circle(Vector(-28.087004, 22.678382, 0), Vector(0, 0, 1), 10.125), math.radians(88.879677), math.radians(360.000002)),
    Part.ArcOfCircle(Part.Circle(Vector(-28.085579, 22.678424, 0), Vector(0, 0, 1), 10.123575), math.radians(-0.000237), math.radians(1.651462)),
    Part.LineSegment(Vector(-17.966209, 22.97018, 0), Vector(17.110961, 26.301446, 0)),
    Part.LineSegment(Vector(17.110961, 26.301446, 0), Vector(17.110961, 32.801446, 0)),
    Part.LineSegment(Vector(17.110961, 32.801446, 0), Vector(-27.889039, 32.801446, 0)),
], False)
sketch13.addConstraint([
    Sketcher.Constraint("Coincident", 0, 2, 1, 1),
    Sketcher.Constraint("Coincident", 1, 2, 2, 1),
    Sketcher.Constraint("Coincident", 2, 2, 3, 1),
    Sketcher.Constraint("Coincident", 3, 2, 4, 1),
    Sketcher.Constraint("Coincident", 4, 2, 0, 1),
    Sketcher.Constraint("Vertical", 3),
    Sketcher.Constraint("Horizontal", 4),
    Sketcher.Constraint("DistanceX", 4, 2, 4, 1, 45.0),
    Sketcher.Constraint("DistanceY", 3, 1, 3, 2, 6.5),
    Sketcher.Constraint("Radius", 0, 10.125),
    Sketcher.Constraint("Distance", 2, 35.234999),
    Sketcher.Constraint("Radius", 1, 10.123575),
    Sketcher.Constraint("DistanceY", 0, 3, 1, 2, 0.291798),
    Sketcher.Constraint("DistanceY", -1, 1, 0, 3, 22.678382),
    Sketcher.Constraint("DistanceX", 1, 3, -1, 1, 28.085579),
    Sketcher.Constraint("DistanceY", -1, 1, 0, 2, 22.678382),
    Sketcher.Constraint("DistanceX", 1, 2, -1, 1, 17.966209),
])
sketch13.setExpression("Constraints[7]", "Params.sketch13_width")
sketch13.setExpression("Constraints[8]", "Params.sketch13_height")
pad11 = doc.addObject("PartDesign::Pad", "Pad010")
body.addObject(pad11)
pad11.Profile = sketch13
pad11.setExpression("Length", "Params.pad11_length")

sketch14 = doc.addObject("Sketcher::SketchObject", "Sketch013")
body.addObject(sketch14)
sketch14.AttachmentSupport = (doc.XY_Plane, [""])
sketch14.MapMode = "FlatFace"
sketch14.AttachmentOffset = App.Placement(Vector(0, 0, 56.706339), App.Rotation())
sketch14.addGeometry([
    Part.LineSegment(Vector(17.110961, 26.301446, 0), Vector(17.110961, 32.801446, 0)),
    Part.LineSegment(Vector(17.110961, 32.801446, 0), Vector(2.419159, 32.801446, 0)),
    Part.LineSegment(Vector(2.419159, 32.801446, 0), Vector(-0.427624, 24.635813, 0)),
    Part.LineSegment(Vector(-0.427624, 24.635813, 0), Vector(17.110961, 26.301446, 0)),
], False)
sketch14.addConstraint([
    Sketcher.Constraint("Coincident", 0, 2, 1, 1),
    Sketcher.Constraint("Coincident", 1, 2, 2, 1),
    Sketcher.Constraint("Coincident", 2, 2, 3, 1),
    Sketcher.Constraint("Coincident", 3, 2, 0, 1),
    Sketcher.Constraint("Vertical", 0),
    Sketcher.Constraint("Horizontal", 1),
    Sketcher.Constraint("DistanceY", 0, 1, 0, 2, 6.5),
    Sketcher.Constraint("DistanceX", 1, 2, 1, 1, 14.691802),
    Sketcher.Constraint("Distance", 3, 17.6175),
    Sketcher.Constraint("DistanceX", -1, 1, 0, 2, 17.110961),
    Sketcher.Constraint("Distance", 2, 8.647643),
    Sketcher.Constraint("DistanceY", -1, 1, 0, 2, 32.801446),
])
sketch14.setExpression("Constraints[6]", "Params.sketch14_height")
pad12 = doc.addObject("PartDesign::Pad", "Pad011")
body.addObject(pad12)
pad12.Profile = sketch14
pad12.setExpression("Length", "Params.pad12_length")

sketch15 = doc.addObject("Sketcher::SketchObject", "Sketch014")
body.addObject(sketch15)
sketch15.AttachmentSupport = (doc.YZ_Plane, [""])
sketch15.MapMode = "FlatFace"
sketch15.AttachmentOffset = App.Placement(Vector(0, 0, -58.625), App.Rotation())
sketch15.addGeometry([
    Part.LineSegment(Vector(0.66, 31.875, 0), Vector(0.66, -31.875, 0)),
    Part.LineSegment(Vector(0.66, -31.875, 0), Vector(-7.34, -31.875, 0)),
    Part.LineSegment(Vector(-7.34, -31.875, 0), Vector(-7.34, 31.875, 0)),
    Part.LineSegment(Vector(-7.34, 31.875, 0), Vector(0.66, 31.875, 0)),
], False)
sketch15.addConstraint([
    Sketcher.Constraint("Coincident", 0, 2, 1, 1),
    Sketcher.Constraint("Coincident", 1, 2, 2, 1),
    Sketcher.Constraint("Coincident", 2, 2, 3, 1),
    Sketcher.Constraint("Coincident", 3, 2, 0, 1),
    Sketcher.Constraint("Vertical", 0),
    Sketcher.Constraint("Horizontal", 1),
    Sketcher.Constraint("Vertical", 2),
    Sketcher.Constraint("Horizontal", 3),
    Sketcher.Constraint("DistanceX", 1, 2, 1, 1, 8.0),
    Sketcher.Constraint("DistanceY", 0, 2, 0, 1, 63.75),
    Sketcher.Constraint("DistanceX", -1, 1, 0, 2, 0.66),
    Sketcher.Constraint("DistanceY", 0, 2, -1, 1, 31.875),
])
sketch15.setExpression("Constraints[8]", "Params.sketch15_width")
sketch15.setExpression("Constraints[9]", "Params.sketch15_height")
pad13 = doc.addObject("PartDesign::Pad", "Pad012")
body.addObject(pad13)
pad13.Profile = sketch15
pad13.setExpression("Length", "Params.pad13_length")
pad13.Reversed = True

sketch16 = doc.addObject("Sketcher::SketchObject", "Sketch015")
body.addObject(sketch16)
sketch16.AttachmentSupport = (doc.XZ_Plane, [""])
sketch16.MapMode = "FlatFace"
sketch16.AttachmentOffset = App.Placement(Vector(0, 0, 4.75), App.Rotation())
sketch16.addGeometry([
    Part.LineSegment(Vector(-29.335, 28.425, 0), Vector(-29.335, -28.425, 0)),
    Part.LineSegment(Vector(-29.335, -28.425, 0), Vector(37.225, -28.425, 0)),
    Part.LineSegment(Vector(37.225, -28.425, 0), Vector(37.225, 28.425, 0)),
    Part.LineSegment(Vector(37.225, 28.425, 0), Vector(-29.335, 28.425, 0)),
], False)
sketch16.addConstraint([
    Sketcher.Constraint("Coincident", 0, 2, 1, 1),
    Sketcher.Constraint("Coincident", 1, 2, 2, 1),
    Sketcher.Constraint("Coincident", 2, 2, 3, 1),
    Sketcher.Constraint("Coincident", 3, 2, 0, 1),
    Sketcher.Constraint("Vertical", 0),
    Sketcher.Constraint("Horizontal", 1),
    Sketcher.Constraint("Vertical", 2),
    Sketcher.Constraint("Horizontal", 3),
    Sketcher.Constraint("DistanceX", 1, 1, 1, 2, 66.56),
    Sketcher.Constraint("DistanceY", 0, 2, 0, 1, 56.85),
    Sketcher.Constraint("DistanceX", 0, 2, -1, 1, 29.335),
    Sketcher.Constraint("DistanceY", 0, 2, -1, 1, 28.425),
])
sketch16.setExpression("Constraints[8]", "Params.sketch16_width")
sketch16.setExpression("Constraints[9]", "Params.sketch16_height")
pocket3 = doc.addObject("PartDesign::Pocket", "Pocket002")
body.addObject(pocket3)
pocket3.Profile = sketch16
pocket3.setExpression("Length", "Params.pocket3_length")

doc.recompute()
